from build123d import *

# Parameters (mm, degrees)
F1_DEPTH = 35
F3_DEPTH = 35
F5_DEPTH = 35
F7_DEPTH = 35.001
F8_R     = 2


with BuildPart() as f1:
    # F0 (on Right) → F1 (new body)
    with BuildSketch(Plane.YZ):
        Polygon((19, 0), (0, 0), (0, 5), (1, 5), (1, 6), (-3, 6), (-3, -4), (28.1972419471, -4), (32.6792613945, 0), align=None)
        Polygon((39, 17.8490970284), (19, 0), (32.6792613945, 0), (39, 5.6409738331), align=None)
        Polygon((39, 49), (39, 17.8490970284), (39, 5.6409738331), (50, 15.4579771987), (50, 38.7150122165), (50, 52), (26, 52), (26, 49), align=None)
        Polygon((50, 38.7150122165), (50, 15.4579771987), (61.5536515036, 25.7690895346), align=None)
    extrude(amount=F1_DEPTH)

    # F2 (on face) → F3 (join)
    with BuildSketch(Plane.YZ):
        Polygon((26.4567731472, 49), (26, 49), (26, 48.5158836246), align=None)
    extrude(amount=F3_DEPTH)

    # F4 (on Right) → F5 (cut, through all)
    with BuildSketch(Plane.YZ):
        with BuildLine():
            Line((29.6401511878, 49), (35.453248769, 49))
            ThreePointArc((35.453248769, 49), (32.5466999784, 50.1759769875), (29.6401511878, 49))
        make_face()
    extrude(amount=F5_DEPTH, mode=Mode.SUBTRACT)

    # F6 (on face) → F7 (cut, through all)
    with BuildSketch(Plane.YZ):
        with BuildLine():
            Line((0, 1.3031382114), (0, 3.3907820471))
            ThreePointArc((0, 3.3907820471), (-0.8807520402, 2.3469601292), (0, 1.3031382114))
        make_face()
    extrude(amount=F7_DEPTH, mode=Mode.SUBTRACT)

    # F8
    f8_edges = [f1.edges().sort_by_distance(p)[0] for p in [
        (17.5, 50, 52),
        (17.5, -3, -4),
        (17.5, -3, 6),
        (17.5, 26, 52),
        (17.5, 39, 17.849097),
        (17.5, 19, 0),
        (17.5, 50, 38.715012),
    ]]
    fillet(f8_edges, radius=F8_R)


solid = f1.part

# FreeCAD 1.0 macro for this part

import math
import FreeCAD as App
import Part
import Sketcher

V = App.Vector
Q = App.Units.Quantity


def edges_at(feature, points):
    """Names of the edges that pass closest to the given points."""
    edges = feature.Shape.Edges
    near = lambda p: min(range(len(edges)), key=lambda i: edges[i].distToShape(Part.Vertex(*p))[0])
    return sorted({f"Edge{near(p) + 1}" for p in points})

doc = App.newDocument("Part")
params = doc.addObject("Spreadsheet::Sheet", "Params")
for row, (alias, value) in enumerate([
    ("sketch1_width", "1 mm"),
    ("sketch1_width2", "4 mm"),
    ("sketch1_width3", "24 mm"),
    ("sketch1_width4", "13 mm"),
    ("sketch1_width5", "19 mm"),
    ("pad1_length", "35 mm"),
    ("pad2_length", "35 mm"),
    ("fillet_radius", "2 mm"),
], start=1):
    params.set(f"A{row}", alias)
    params.set(f"B{row}", "=" + value)
    params.setAlias(f"B{row}", alias)

body = doc.addObject("PartDesign::Body", "Body")

# Sketch on YZ plane
sketch1 = body.newObject("Sketcher::SketchObject", "Sketch")
sketch1.AttachmentSupport = (doc.getObject("YZ_Plane"), [""])
sketch1.MapMode = "FlatFace"
sketch1.addGeometry(Part.LineSegment(V(0, 0, 0), V(0, 5, 0)), False)
sketch1.addGeometry(Part.LineSegment(V(0, 5, 0), V(1, 5, 0)), False)
sketch1.addGeometry(Part.LineSegment(V(1, 5, 0), V(1, 6, 0)), False)
sketch1.addGeometry(Part.LineSegment(V(1, 6, 0), V(-3, 6, 0)), False)
sketch1.addGeometry(Part.LineSegment(V(-3, 6, 0), V(-3, -4, 0)), False)
sketch1.addGeometry(Part.LineSegment(V(-3, -4, 0), V(28.2, -4, 0)), False)
sketch1.addGeometry(Part.LineSegment(V(28.2, -4, 0), V(32.7, 0, 0)), False)
sketch1.addGeometry(Part.LineSegment(V(32.7, 0, 0), V(39, 5.6, 0)), False)
sketch1.addGeometry(Part.LineSegment(V(39, 5.6, 0), V(50, 15.5, 0)), False)
sketch1.addGeometry(Part.LineSegment(V(50, 15.5, 0), V(61.6, 25.8, 0)), False)
sketch1.addGeometry(Part.LineSegment(V(61.6, 25.8, 0), V(50, 38.7, 0)), False)
sketch1.addGeometry(Part.LineSegment(V(50, 38.7, 0), V(50, 52, 0)), False)
sketch1.addGeometry(Part.LineSegment(V(50, 52, 0), V(26, 52, 0)), False)
sketch1.addGeometry(Part.LineSegment(V(26, 52, 0), V(26, 49, 0)), False)
sketch1.addGeometry(Part.LineSegment(V(26, 49, 0), V(39, 49, 0)), False)
sketch1.addGeometry(Part.LineSegment(V(39, 49, 0), V(39, 17.8, 0)), False)
sketch1.addGeometry(Part.LineSegment(V(39, 17.8, 0), V(19, 0, 0)), False)
sketch1.addGeometry(Part.LineSegment(V(19, 0, 0), V(0, 0, 0)), False)
sketch1.addConstraint(Sketcher.Constraint("Coincident", 0, 2, 1, 1))
sketch1.addConstraint(Sketcher.Constraint("Coincident", 1, 2, 2, 1))
sketch1.addConstraint(Sketcher.Constraint("Coincident", 2, 2, 3, 1))
sketch1.addConstraint(Sketcher.Constraint("Coincident", 3, 2, 4, 1))
sketch1.addConstraint(Sketcher.Constraint("Coincident", 4, 2, 5, 1))
sketch1.addConstraint(Sketcher.Constraint("Coincident", 5, 2, 6, 1))
sketch1.addConstraint(Sketcher.Constraint("Coincident", 6, 2, 7, 1))
sketch1.addConstraint(Sketcher.Constraint("Coincident", 7, 2, 8, 1))
sketch1.addConstraint(Sketcher.Constraint("Coincident", 8, 2, 9, 1))
sketch1.addConstraint(Sketcher.Constraint("Coincident", 9, 2, 10, 1))
sketch1.addConstraint(Sketcher.Constraint("Coincident", 10, 2, 11, 1))
sketch1.addConstraint(Sketcher.Constraint("Coincident", 11, 2, 12, 1))
sketch1.addConstraint(Sketcher.Constraint("Coincident", 12, 2, 13, 1))
sketch1.addConstraint(Sketcher.Constraint("Coincident", 13, 2, 14, 1))
sketch1.addConstraint(Sketcher.Constraint("Coincident", 14, 2, 15, 1))
sketch1.addConstraint(Sketcher.Constraint("Coincident", 15, 2, 16, 1))
sketch1.addConstraint(Sketcher.Constraint("Coincident", 16, 2, 17, 1))
sketch1.addConstraint(Sketcher.Constraint("Coincident", 17, 2, 0, 1))
sketch1.addConstraint(Sketcher.Constraint("Vertical", 0))
sketch1.addConstraint(Sketcher.Constraint("Horizontal", 1))
sketch1.addConstraint(Sketcher.Constraint("Vertical", 2))
sketch1.addConstraint(Sketcher.Constraint("Horizontal", 3))
sketch1.addConstraint(Sketcher.Constraint("Vertical", 4))
sketch1.addConstraint(Sketcher.Constraint("Horizontal", 5))
sketch1.addConstraint(Sketcher.Constraint("Vertical", 11))
sketch1.addConstraint(Sketcher.Constraint("Horizontal", 12))
sketch1.addConstraint(Sketcher.Constraint("Vertical", 13))
sketch1.addConstraint(Sketcher.Constraint("Horizontal", 14))
sketch1.addConstraint(Sketcher.Constraint("Vertical", 15))
sketch1.addConstraint(Sketcher.Constraint("Horizontal", 17))
sketch1.addConstraint(Sketcher.Constraint("Coincident", 17, 2, -1, 1))
sketch1.addConstraint(Sketcher.Constraint("PointOnObject", 6, 2, -1))
sketch1.addConstraint(Sketcher.Constraint("Parallel", 6, 7))
sketch1.addConstraint(Sketcher.Constraint("Parallel", 7, 8))
sketch1.addConstraint(Sketcher.Constraint("Parallel", 8, 9))
sketch1.addConstraint(Sketcher.Constraint("Perpendicular", 9, 10))
sketch1.addConstraint(Sketcher.Constraint("Perpendicular", 10, 16))
sketch1.addConstraint(Sketcher.Constraint("Vertical", 8, 2, 10, 2))
sketch1.addConstraint(Sketcher.Constraint("Vertical", 7, 2, 14, 2))
sketch1.addConstraint(Sketcher.Constraint("Equal", 1, 2))
sketch1.addConstraint(Sketcher.Constraint("DistanceX", 1, 1, 1, 2, Q("1 mm")))
sketch1.addConstraint(Sketcher.Constraint("DistanceX", 3, 2, 3, 1, Q("4 mm")))
sketch1.addConstraint(Sketcher.Constraint("DistanceX", 12, 2, 12, 1, Q("24 mm")))
sketch1.addConstraint(Sketcher.Constraint("DistanceX", 14, 1, 14, 2, Q("13 mm")))
sketch1.addConstraint(Sketcher.Constraint("DistanceX", 17, 2, 17, 1, Q("19 mm")))
sketch1.addConstraint(Sketcher.Constraint("DistanceY", 0, 1, 0, 2, Q("5 mm")))
sketch1.addConstraint(Sketcher.Constraint("DistanceY", 4, 2, 4, 1, Q("10 mm")))
sketch1.addConstraint(Sketcher.Constraint("DistanceY", 13, 2, 13, 1, Q("3 mm")))
sketch1.addConstraint(Sketcher.Constraint("DistanceX", -1, 1, 7, 2, Q("39 mm")))
sketch1.addConstraint(Sketcher.Constraint("DistanceY", -1, 1, 11, 2, Q("52 mm")))
sketch1.addConstraint(Sketcher.Constraint("DistanceX", 5, 1, 5, 2, Q("31.197242 mm")))
sketch1.addConstraint(Sketcher.Constraint("Distance", 6, Q("6.00737 mm")))
sketch1.addConstraint(Sketcher.Constraint("DistanceY", 11, 1, 11, 2, Q("13.284988 mm")))
sketch1.setExpression("Constraints[40]", "Params.sketch1_width")
sketch1.setExpression("Constraints[41]", "Params.sketch1_width2")
sketch1.setExpression("Constraints[42]", "Params.sketch1_width3")
sketch1.setExpression("Constraints[43]", "Params.sketch1_width4")
sketch1.setExpression("Constraints[44]", "Params.sketch1_width5")
pad1 = body.newObject("PartDesign::Pad", "Pad")
pad1.Profile = sketch1
pad1.setExpression("Length", "Params.pad1_length")

# Sketch on YZ plane
sketch2 = body.newObject("Sketcher::SketchObject", "Sketch001")
sketch2.AttachmentSupport = (doc.getObject("YZ_Plane"), [""])
sketch2.MapMode = "FlatFace"
sketch2.addGeometry(Part.LineSegment(V(26.46, 49, 0), V(26, 49, 0)), False)
sketch2.addGeometry(Part.LineSegment(V(26, 49, 0), V(26, 48.52, 0)), False)
sketch2.addGeometry(Part.LineSegment(V(26, 48.52, 0), V(26.46, 49, 0)), False)
sketch2.addConstraint(Sketcher.Constraint("Coincident", 0, 2, 1, 1))
sketch2.addConstraint(Sketcher.Constraint("Coincident", 1, 2, 2, 1))
sketch2.addConstraint(Sketcher.Constraint("Coincident", 2, 2, 0, 1))
sketch2.addConstraint(Sketcher.Constraint("Horizontal", 0))
sketch2.addConstraint(Sketcher.Constraint("Vertical", 1))
sketch2.addConstraint(Sketcher.Constraint("DistanceX", -1, 1, 0, 2, Q("26 mm")))
sketch2.addConstraint(Sketcher.Constraint("DistanceY", -1, 1, 0, 2, Q("49 mm")))
sketch2.addConstraint(Sketcher.Constraint("Distance", 2, Q("0.66559 mm")))
sketch2.addConstraint(Sketcher.Constraint("DistanceX", 0, 2, 0, 1, Q("0.456773 mm")))
pad2 = body.newObject("PartDesign::Pad", "Pad001")
pad2.Profile = sketch2
pad2.setExpression("Length", "Params.pad2_length")

# Sketch on YZ plane
sketch3 = body.newObject("Sketcher::SketchObject", "Sketch002")
sketch3.AttachmentSupport = (doc.getObject("YZ_Plane"), [""])
sketch3.MapMode = "FlatFace"
sketch3.addGeometry(Part.LineSegment(V(29.6, 49, 0), V(35.5, 49, 0)), False)
sketch3.addGeometry(Part.ArcOfCircle(Part.Circle(V(32.5, 46, 0), V(0, 0, 1), 4.2), math.radians(46), math.radians(134)), False)
sketch3.addConstraint(Sketcher.Constraint("Coincident", 0, 1, 1, 2))
sketch3.addConstraint(Sketcher.Constraint("Coincident", 1, 1, 0, 2))
sketch3.addConstraint(Sketcher.Constraint("Horizontal", 0))
sketch3.addConstraint(Sketcher.Constraint("DistanceY", -1, 1, 0, 1, Q("49 mm")))
sketch3.addConstraint(Sketcher.Constraint("Radius", 1, Q("4.179907 mm")))
sketch3.addConstraint(Sketcher.Constraint("DistanceX", -1, 1, 1, 3, Q("32.5467 mm")))
sketch3.addConstraint(Sketcher.Constraint("DistanceX", 0, 1, 0, 2, Q("5.813098 mm")))
pocket1 = body.newObject("PartDesign::Pocket", "Pocket")
pocket1.Profile = sketch3
pocket1.Type = "ThroughAll"
pocket1.Reversed = True

# Sketch on YZ plane
sketch4 = body.newObject("Sketcher::SketchObject", "Sketch003")
sketch4.AttachmentSupport = (doc.getObject("YZ_Plane"), [""])
sketch4.MapMode = "FlatFace"
sketch4.addGeometry(Part.LineSegment(V(0, 1.3, 0), V(0, 3.4, 0)), False)
sketch4.addGeometry(Part.ArcOfCircle(Part.Circle(V(0.2, 2.3, 0), V(0, 0, 1), 1.1), math.radians(100), math.radians(260)), False)
sketch4.addConstraint(Sketcher.Constraint("Coincident", 0, 1, 1, 2))
sketch4.addConstraint(Sketcher.Constraint("Coincident", 1, 1, 0, 2))
sketch4.addConstraint(Sketcher.Constraint("Vertical", 0))
sketch4.addConstraint(Sketcher.Constraint("PointOnObject", 0, 1, -2))
sketch4.addConstraint(Sketcher.Constraint("Radius", 1, Q("1.058918 mm")))
sketch4.addConstraint(Sketcher.Constraint("DistanceY", 0, 1, 0, 2, Q("2.087644 mm")))
sketch4.addConstraint(Sketcher.Constraint("DistanceY", -1, 1, 1, 3, Q("2.34696 mm")))
pocket2 = body.newObject("PartDesign::Pocket", "Pocket001")
pocket2.Profile = sketch4
pocket2.Type = "ThroughAll"
pocket2.Reversed = True
doc.recompute()

fillet = body.newObject("PartDesign::Fillet", "Fillet")
fillet.Base = (pocket2, edges_at(pocket2, [
    (17.5, 50, 52),
    (17.5, -3, -4),
    (17.5, -3, 6),
    (17.5, 26, 52),
    (17.5, 39, 17.849),
    (17.5, 19, 0),
    (17.5, 50, 38.715),
]))
fillet.setExpression("Radius", "Params.fillet_radius")

doc.recompute()
